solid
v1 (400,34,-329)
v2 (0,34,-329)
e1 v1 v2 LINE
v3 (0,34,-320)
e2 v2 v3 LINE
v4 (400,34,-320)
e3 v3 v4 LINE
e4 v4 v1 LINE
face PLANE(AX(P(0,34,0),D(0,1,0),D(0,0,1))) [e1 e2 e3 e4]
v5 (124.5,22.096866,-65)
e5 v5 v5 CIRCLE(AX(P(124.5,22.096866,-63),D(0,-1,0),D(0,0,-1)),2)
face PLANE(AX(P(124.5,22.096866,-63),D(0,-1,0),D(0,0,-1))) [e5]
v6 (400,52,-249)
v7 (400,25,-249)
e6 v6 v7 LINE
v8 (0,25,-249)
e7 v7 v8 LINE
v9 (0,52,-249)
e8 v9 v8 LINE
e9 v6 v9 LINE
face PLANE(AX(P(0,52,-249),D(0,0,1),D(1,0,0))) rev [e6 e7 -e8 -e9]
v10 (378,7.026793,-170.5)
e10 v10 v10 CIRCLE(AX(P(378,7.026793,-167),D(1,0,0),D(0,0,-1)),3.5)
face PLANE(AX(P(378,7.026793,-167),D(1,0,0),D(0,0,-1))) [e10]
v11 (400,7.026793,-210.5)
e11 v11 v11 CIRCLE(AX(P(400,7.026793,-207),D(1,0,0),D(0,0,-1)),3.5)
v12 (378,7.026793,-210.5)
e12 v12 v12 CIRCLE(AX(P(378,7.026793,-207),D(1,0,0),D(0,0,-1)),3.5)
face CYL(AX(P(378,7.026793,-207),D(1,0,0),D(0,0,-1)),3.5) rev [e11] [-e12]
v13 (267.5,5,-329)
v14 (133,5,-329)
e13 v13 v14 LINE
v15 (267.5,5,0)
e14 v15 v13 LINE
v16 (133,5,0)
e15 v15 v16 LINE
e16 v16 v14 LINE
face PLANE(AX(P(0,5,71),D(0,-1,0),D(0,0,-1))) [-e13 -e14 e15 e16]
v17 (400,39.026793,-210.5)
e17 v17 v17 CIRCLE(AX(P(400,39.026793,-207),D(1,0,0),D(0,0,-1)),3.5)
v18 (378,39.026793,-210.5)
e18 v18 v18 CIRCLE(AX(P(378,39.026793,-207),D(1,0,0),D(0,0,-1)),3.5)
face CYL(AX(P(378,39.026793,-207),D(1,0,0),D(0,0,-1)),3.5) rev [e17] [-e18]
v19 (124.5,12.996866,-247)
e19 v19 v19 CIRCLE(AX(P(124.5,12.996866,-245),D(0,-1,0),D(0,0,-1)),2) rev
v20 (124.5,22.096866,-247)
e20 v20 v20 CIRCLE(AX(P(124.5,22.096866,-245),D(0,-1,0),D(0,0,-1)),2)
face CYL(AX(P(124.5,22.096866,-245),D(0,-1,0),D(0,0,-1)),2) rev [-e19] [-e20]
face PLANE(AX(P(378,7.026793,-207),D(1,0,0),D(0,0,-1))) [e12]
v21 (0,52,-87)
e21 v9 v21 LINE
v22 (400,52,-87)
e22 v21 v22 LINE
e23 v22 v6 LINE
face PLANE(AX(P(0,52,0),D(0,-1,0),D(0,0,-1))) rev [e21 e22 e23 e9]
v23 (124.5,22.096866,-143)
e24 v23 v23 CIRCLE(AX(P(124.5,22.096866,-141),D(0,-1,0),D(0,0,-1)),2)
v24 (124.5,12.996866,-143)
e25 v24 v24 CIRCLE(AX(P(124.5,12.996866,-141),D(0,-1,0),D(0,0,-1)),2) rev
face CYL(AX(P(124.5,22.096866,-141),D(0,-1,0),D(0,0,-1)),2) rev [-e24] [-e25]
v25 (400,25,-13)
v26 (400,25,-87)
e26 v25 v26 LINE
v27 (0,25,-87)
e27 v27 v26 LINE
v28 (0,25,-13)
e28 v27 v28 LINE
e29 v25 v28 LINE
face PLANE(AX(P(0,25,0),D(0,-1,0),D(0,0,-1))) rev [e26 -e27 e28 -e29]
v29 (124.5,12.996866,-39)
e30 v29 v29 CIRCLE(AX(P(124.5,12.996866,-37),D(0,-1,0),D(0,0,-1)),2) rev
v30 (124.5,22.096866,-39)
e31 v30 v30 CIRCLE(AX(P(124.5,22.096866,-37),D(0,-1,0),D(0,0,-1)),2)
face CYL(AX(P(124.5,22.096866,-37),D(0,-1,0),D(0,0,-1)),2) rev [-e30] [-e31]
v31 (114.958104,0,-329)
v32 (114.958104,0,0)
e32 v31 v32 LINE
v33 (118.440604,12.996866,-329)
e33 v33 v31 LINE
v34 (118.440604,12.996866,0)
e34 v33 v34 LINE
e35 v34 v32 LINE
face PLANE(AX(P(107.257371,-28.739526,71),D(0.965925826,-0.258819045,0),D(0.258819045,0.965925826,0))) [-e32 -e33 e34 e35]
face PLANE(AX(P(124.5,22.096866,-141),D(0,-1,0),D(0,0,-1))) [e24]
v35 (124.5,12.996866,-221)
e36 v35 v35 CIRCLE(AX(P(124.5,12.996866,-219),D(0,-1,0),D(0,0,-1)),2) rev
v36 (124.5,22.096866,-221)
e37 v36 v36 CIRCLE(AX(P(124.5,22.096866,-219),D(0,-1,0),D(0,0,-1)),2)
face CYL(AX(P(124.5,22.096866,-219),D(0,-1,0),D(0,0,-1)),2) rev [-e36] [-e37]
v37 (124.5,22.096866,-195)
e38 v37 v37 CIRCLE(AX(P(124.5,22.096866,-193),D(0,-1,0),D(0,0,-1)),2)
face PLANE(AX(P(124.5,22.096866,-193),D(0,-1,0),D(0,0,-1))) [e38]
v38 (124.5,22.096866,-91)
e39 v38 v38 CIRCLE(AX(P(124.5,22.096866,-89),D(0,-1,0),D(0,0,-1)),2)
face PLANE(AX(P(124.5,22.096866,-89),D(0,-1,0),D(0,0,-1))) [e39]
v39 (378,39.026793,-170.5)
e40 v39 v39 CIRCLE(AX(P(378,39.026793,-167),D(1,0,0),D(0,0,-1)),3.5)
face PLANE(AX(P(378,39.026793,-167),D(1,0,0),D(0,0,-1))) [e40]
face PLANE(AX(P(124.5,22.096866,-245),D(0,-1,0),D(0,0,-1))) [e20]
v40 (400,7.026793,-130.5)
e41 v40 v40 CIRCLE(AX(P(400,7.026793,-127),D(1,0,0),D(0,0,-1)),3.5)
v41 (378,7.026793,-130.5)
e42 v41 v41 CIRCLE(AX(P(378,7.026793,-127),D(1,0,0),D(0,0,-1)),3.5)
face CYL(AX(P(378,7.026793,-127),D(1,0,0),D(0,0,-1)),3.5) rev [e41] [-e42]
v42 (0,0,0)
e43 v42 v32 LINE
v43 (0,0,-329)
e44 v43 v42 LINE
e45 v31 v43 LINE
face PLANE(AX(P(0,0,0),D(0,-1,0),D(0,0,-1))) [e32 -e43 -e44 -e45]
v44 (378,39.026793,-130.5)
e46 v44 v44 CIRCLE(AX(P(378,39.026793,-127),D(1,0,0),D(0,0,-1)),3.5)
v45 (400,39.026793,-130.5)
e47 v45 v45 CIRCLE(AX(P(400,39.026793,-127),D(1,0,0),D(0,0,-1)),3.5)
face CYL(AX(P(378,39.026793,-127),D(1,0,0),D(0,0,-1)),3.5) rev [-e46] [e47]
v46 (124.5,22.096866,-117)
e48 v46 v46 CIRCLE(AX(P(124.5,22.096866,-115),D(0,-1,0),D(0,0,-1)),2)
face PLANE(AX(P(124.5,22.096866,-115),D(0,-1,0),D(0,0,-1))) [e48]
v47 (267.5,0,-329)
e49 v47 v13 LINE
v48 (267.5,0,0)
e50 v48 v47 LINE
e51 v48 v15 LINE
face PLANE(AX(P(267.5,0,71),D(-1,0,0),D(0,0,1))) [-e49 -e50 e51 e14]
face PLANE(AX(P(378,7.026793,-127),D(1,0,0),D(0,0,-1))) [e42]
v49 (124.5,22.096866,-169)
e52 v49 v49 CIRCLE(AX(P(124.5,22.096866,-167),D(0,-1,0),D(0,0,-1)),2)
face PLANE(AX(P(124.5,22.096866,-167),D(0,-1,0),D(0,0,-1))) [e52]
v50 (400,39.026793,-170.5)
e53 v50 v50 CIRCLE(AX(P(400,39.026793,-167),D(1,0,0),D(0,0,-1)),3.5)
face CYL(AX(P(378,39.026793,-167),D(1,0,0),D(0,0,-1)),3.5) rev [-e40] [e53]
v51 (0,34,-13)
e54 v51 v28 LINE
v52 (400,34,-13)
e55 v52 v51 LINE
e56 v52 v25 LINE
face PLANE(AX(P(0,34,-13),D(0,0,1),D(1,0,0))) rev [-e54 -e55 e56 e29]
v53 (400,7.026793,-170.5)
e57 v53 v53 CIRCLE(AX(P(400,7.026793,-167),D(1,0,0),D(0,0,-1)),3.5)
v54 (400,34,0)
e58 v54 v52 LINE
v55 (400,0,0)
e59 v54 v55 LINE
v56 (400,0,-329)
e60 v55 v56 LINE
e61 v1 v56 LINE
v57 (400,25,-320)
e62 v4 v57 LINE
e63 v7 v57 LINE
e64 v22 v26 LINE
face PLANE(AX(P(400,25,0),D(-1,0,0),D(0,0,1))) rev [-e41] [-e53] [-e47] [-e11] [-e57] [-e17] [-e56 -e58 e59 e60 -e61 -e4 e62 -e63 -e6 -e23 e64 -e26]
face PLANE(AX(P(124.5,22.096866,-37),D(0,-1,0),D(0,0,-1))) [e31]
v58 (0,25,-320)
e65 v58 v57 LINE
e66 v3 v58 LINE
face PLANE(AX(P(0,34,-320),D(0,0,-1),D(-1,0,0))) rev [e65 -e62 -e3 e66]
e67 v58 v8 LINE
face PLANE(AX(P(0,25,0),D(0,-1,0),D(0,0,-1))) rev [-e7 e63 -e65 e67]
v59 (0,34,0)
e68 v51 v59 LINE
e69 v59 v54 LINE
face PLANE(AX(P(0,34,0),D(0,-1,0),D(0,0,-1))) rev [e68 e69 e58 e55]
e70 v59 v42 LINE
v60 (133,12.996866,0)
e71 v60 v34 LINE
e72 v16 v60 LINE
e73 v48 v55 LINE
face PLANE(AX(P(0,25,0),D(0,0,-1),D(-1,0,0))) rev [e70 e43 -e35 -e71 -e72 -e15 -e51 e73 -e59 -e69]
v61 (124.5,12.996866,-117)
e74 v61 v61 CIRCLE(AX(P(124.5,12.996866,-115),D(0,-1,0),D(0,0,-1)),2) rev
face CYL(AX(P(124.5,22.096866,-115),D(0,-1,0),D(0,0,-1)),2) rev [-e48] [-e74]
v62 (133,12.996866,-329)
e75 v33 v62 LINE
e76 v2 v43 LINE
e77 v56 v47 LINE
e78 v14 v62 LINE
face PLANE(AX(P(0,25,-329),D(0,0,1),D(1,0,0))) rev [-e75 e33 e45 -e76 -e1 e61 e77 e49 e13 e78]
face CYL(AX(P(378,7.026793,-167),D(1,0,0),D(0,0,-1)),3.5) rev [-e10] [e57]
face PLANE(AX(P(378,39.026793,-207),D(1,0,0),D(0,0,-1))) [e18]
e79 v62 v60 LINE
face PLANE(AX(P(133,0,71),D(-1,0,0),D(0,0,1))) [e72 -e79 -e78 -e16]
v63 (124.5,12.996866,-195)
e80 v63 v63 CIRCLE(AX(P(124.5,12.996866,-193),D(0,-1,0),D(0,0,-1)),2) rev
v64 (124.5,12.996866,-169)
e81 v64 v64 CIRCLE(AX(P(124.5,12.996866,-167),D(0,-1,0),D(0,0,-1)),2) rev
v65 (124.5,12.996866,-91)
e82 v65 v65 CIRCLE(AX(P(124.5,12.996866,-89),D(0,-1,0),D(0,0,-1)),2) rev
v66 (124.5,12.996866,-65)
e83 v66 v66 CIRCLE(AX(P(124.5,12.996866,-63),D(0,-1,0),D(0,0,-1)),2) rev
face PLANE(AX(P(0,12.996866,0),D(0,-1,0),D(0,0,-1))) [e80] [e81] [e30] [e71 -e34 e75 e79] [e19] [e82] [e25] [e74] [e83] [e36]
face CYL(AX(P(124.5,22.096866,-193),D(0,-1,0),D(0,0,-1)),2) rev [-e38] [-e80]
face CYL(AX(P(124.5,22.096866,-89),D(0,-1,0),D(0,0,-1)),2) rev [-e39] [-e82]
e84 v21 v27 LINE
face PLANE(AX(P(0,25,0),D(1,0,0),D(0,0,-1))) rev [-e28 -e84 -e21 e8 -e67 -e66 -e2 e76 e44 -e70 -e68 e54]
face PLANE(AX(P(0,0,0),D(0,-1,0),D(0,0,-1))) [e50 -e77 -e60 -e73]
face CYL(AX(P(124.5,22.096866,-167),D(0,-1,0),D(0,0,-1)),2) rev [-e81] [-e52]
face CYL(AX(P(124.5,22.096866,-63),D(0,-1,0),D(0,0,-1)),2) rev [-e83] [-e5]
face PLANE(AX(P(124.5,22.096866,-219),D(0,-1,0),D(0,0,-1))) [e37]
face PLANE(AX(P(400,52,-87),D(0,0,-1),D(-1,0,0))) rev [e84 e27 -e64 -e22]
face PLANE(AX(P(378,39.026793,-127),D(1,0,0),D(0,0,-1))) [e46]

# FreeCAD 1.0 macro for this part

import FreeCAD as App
import Part
import Sketcher
Q = App.Units.Quantity

doc = App.newDocument("Part")
body = doc.addObject("PartDesign::Body", "Body")

sketch1 = body.newObject("Sketcher::SketchObject", "Sketch")
sketch1.AttachmentSupport = (doc.getObject("XZ_Plane"), [""])
sketch1.MapMode = "FlatFace"
sketch1.addGeometry([
    Part.LineSegment(App.Vector(0, -329, 0), App.Vector(0, 0, 0)),
    Part.LineSegment(App.Vector(0, 0, 0), App.Vector(400, 0, 0)),
    Part.LineSegment(App.Vector(400, 0, 0), App.Vector(400, -329, 0)),
    Part.LineSegment(App.Vector(400, -329, 0), App.Vector(0, -329, 0)),
], False)
sketch1.addConstraint([
    Sketcher.Constraint("Coincident", 0, 2, 1, 1),
    Sketcher.Constraint("Coincident", 1, 2, 2, 1),
    Sketcher.Constraint("Coincident", 2, 2, 3, 1),
    Sketcher.Constraint("Coincident", 3, 2, 0, 1),
    Sketcher.Constraint("Vertical", 0),
    Sketcher.Constraint("Horizontal", 1),
    Sketcher.Constraint("Vertical", 2),
    Sketcher.Constraint("Horizontal", 3),
    Sketcher.Constraint("Coincident", 0, 2, -1, 1),
    Sketcher.Constraint("DistanceX", 1, 1, 1, 2, 400.0),
    Sketcher.Constraint("DistanceY", 0, 1, 0, 2, 329.0),
])
pad1 = body.newObject("PartDesign::Pad", "Pad")
pad1.Profile = sketch1
pad1.Length = 25
pad1.Reversed = True

sketch2 = body.newObject("Sketcher::SketchObject", "Sketch001")
sketch2.AttachmentSupport = (doc.getObject("XZ_Plane"), [""])
sketch2.MapMode = "FlatFace"
sketch2.AttachmentOffset = App.Placement(App.Vector(0, 0, -25), App.Rotation())
sketch2.addGeometry([
    Part.LineSegment(App.Vector(0, -249, 0), App.Vector(0, -87, 0)),
    Part.LineSegment(App.Vector(0, -87, 0), App.Vector(400, -87, 0)),
    Part.LineSegment(App.Vector(400, -87, 0), App.Vector(400, -249, 0)),
    Part.LineSegment(App.Vector(400, -249, 0), App.Vector(0, -249, 0)),
], False)
sketch2.addConstraint([
    Sketcher.Constraint("Coincident", 0, 2, 1, 1),
    Sketcher.Constraint("Coincident", 1, 2, 2, 1),
    Sketcher.Constraint("Coincident", 2, 2, 3, 1),
    Sketcher.Constraint("Coincident", 3, 2, 0, 1),
    Sketcher.Constraint("Vertical", 0),
    Sketcher.Constraint("Horizontal", 1),
    Sketcher.Constraint("Vertical", 2),
    Sketcher.Constraint("Horizontal", 3),
    Sketcher.Constraint("PointOnObject", 0, 2, -2),
    Sketcher.Constraint("DistanceX", 1, 1, 1, 2, 400.0),
    Sketcher.Constraint("DistanceY", 0, 1, 0, 2, 162.0),
    Sketcher.Constraint("DistanceY", 0, 2, -1, 1, 87.0),
])
pad2 = body.newObject("PartDesign::Pad", "Pad001")
pad2.Profile = sketch2
pad2.Length = 27
pad2.Reversed = True

sketch3 = body.newObject("Sketcher::SketchObject", "Sketch002")
sketch3.AttachmentSupport = (doc.getObject("XZ_Plane"), [""])
sketch3.MapMode = "FlatFace"
sketch3.AttachmentOffset = App.Placement(App.Vector(0, 0, -25), App.Rotation())
sketch3.addGeometry([
    Part.LineSegment(App.Vector(0, -329, 0), App.Vector(0, -320, 0)),
    Part.LineSegment(App.Vector(0, -320, 0), App.Vector(400, -320, 0)),
    Part.LineSegment(App.Vector(400, -320, 0), App.Vector(400, -329, 0)),
    Part.LineSegment(App.Vector(400, -329, 0), App.Vector(0, -329, 0)),
    Part.LineSegment(App.Vector(0, -13, 0), App.Vector(0, 0, 0)),
    Part.LineSegment(App.Vector(0, 0, 0), App.Vector(400, 0, 0)),
    Part.LineSegment(App.Vector(400, 0, 0), App.Vector(400, -13, 0)),
    Part.LineSegment(App.Vector(400, -13, 0), App.Vector(0, -13, 0)),
], False)
sketch3.addConstraint([
    Sketcher.Constraint("Coincident", 0, 2, 1, 1),
    Sketcher.Constraint("Coincident", 1, 2, 2, 1),
    Sketcher.Constraint("Coincident", 2, 2, 3, 1),
    Sketcher.Constraint("Coincident", 3, 2, 0, 1),
    Sketcher.Constraint("Coincident", 4, 2, 5, 1),
    Sketcher.Constraint("Coincident", 5, 2, 6, 1),
    Sketcher.Constraint("Coincident", 6, 2, 7, 1),
    Sketcher.Constraint("Coincident", 7, 2, 4, 1),
    Sketcher.Constraint("Vertical", 0),
    Sketcher.Constraint("Horizontal", 1),
    Sketcher.Constraint("Vertical", 2),
    Sketcher.Constraint("Horizontal", 3),
    Sketcher.Constraint("Vertical", 4),
    Sketcher.Constraint("Horizontal", 5),
    Sketcher.Constraint("Vertical", 6),
    Sketcher.Constraint("Horizontal", 7),
    Sketcher.Constraint("Coincident", 4, 2, -1, 1),
    Sketcher.Constraint("PointOnObject", 0, 2, -2),
    Sketcher.Constraint("Vertical", 2, 2, 5, 2),
    Sketcher.Constraint("DistanceX", 1, 1, 1, 2, 400.0),
    Sketcher.Constraint("DistanceY", 0, 1, 0, 2, 9.0),
    Sketcher.Constraint("DistanceY", 4, 1, 4, 2, 13.0),
    Sketcher.Constraint("DistanceY", 0, 2, -1, 1, 320.0),
])
pad3 = body.newObject("PartDesign::Pad", "Pad002")
pad3.Profile = sketch3
pad3.Length = 9
pad3.Reversed = True

sketch4 = body.newObject("Sketcher::SketchObject", "Sketch003")
sketch4.AttachmentSupport = (doc.getObject("XY_Plane"), [""])
sketch4.MapMode = "FlatFace"
sketch4.AttachmentOffset = App.Placement(App.Vector(0, 0, -329), App.Rotation())
sketch4.addGeometry([
    Part.LineSegment(App.Vector(268, 5, 0), App.Vector(268, 0, 0)),
    Part.LineSegment(App.Vector(268, 0, 0), App.Vector(115, 0, 0)),
    Part.LineSegment(App.Vector(115, 0, 0), App.Vector(118, 13, 0)),
    Part.LineSegment(App.Vector(118, 13, 0), App.Vector(133, 13, 0)),
    Part.LineSegment(App.Vector(133, 13, 0), App.Vector(133, 5, 0)),
    Part.LineSegment(App.Vector(133, 5, 0), App.Vector(268, 5, 0)),
], False)
sketch4.addConstraint([
    Sketcher.Constraint("Coincident", 0, 2, 1, 1),
    Sketcher.Constraint("Coincident", 1, 2, 2, 1),
    Sketcher.Constraint("Coincident", 2, 2, 3, 1),
    Sketcher.Constraint("Coincident", 3, 2, 4, 1),
    Sketcher.Constraint("Coincident", 4, 2, 5, 1),
    Sketcher.Constraint("Coincident", 5, 2, 0, 1),
    Sketcher.Constraint("Vertical", 0),
    Sketcher.Constraint("Horizontal", 1),
    Sketcher.Constraint("Horizontal", 3),
    Sketcher.Constraint("Vertical", 4),
    Sketcher.Constraint("Horizontal", 5),
    Sketcher.Constraint("PointOnObject", 0, 2, -1),
    Sketcher.Constraint("DistanceY", 0, 2, 0, 1, 5.0),
    Sketcher.Constraint("Angle", 2, Q("75 deg")),
    Sketcher.Constraint("DistanceX", 5, 1, 5, 2, 134.5),
    Sketcher.Constraint("DistanceX", -1, 1, 3, 2, 133.0),
    Sketcher.Constraint("DistanceX", 3, 1, 3, 2, 14.54064),
    Sketcher.Constraint("DistanceX", 1, 2, 1, 1, 152.541896),
])
pocket1 = body.newObject("PartDesign::Pocket", "Pocket")
pocket1.Profile = sketch4
pocket1.Length = 400
pocket1.Reversed = True

sketch5 = body.newObject("Sketcher::SketchObject", "Sketch004")
sketch5.AttachmentSupport = (doc.getObject("XZ_Plane"), [""])
sketch5.MapMode = "FlatFace"
sketch5.AttachmentOffset = App.Placement(App.Vector(0, 0, -13.066866), App.Rotation())
sketch5.addGeometry([
    Part.Circle(App.Vector(124.5, -37, 0), App.Vector(0, 0, 1), 2),
    Part.Circle(App.Vector(124.5, -63, 0), App.Vector(0, 0, 1), 2),
    Part.Circle(App.Vector(124.5, -89, 0), App.Vector(0, 0, 1), 2),
    Part.Circle(App.Vector(124.5, -115, 0), App.Vector(0, 0, 1), 2),
    Part.Circle(App.Vector(124.5, -141, 0), App.Vector(0, 0, 1), 2),
    Part.Circle(App.Vector(124.5, -167, 0), App.Vector(0, 0, 1), 2),
    Part.Circle(App.Vector(124.5, -193, 0), App.Vector(0, 0, 1), 2),
    Part.Circle(App.Vector(124.5, -219, 0), App.Vector(0, 0, 1), 2),
    Part.Circle(App.Vector(124.5, -245, 0), App.Vector(0, 0, 1), 2),
], False)
sketch5.addConstraint([
    Sketcher.Constraint("Equal", 0, 1),
    Sketcher.Constraint("Equal", 1, 2),
    Sketcher.Constraint("Equal", 2, 3),
    Sketcher.Constraint("Equal", 3, 4),
    Sketcher.Constraint("Equal", 4, 5),
    Sketcher.Constraint("Equal", 5, 6),
    Sketcher.Constraint("Equal", 6, 7),
    Sketcher.Constraint("Equal", 7, 8),
    Sketcher.Constraint("Vertical", 0, 3, 1, 3),
    Sketcher.Constraint("Vertical", 1, 3, 2, 3),
    Sketcher.Constraint("Vertical", 2, 3, 3, 3),
    Sketcher.Constraint("Vertical", 3, 3, 4, 3),
    Sketcher.Constraint("Vertical", 4, 3, 5, 3),
    Sketcher.Constraint("Vertical", 5, 3, 6, 3),
    Sketcher.Constraint("Vertical", 6, 3, 7, 3),
    Sketcher.Constraint("Vertical", 7, 3, 8, 3),
    Sketcher.Constraint("Diameter", 0, 4.0),
    Sketcher.Constraint("DistanceY", 0, 3, -1, 1, 37.0),
    Sketcher.Constraint("DistanceY", 1, 3, -1, 1, 63.0),
    Sketcher.Constraint("DistanceY", 2, 3, -1, 1, 89.0),
    Sketcher.Constraint("DistanceY", 3, 3, -1, 1, 115.0),
    Sketcher.Constraint("DistanceY", 4, 3, -1, 1, 141.0),
    Sketcher.Constraint("DistanceY", 5, 3, -1, 1, 167.0),
    Sketcher.Constraint("DistanceY", 6, 3, -1, 1, 193.0),
    Sketcher.Constraint("DistanceY", 7, 3, -1, 1, 219.0),
    Sketcher.Constraint("DistanceY", 8, 3, -1, 1, 245.0),
    Sketcher.Constraint("DistanceX", -1, 1, 0, 3, 124.5),
])
pocket2 = body.newObject("PartDesign::Pocket", "Pocket001")
pocket2.Profile = sketch5
pocket2.Length = 9.03

sketch6 = body.newObject("Sketcher::SketchObject", "Sketch005")
sketch6.AttachmentSupport = (doc.getObject("XZ_Plane"), [""])
sketch6.MapMode = "FlatFace"
sketch6.AttachmentOffset = App.Placement(App.Vector(0, 0, -12.996866), App.Rotation())
sketch6.addGeometry([
    Part.LineSegment(App.Vector(118.5, 0, 0), App.Vector(118.5, -329, 0)),
    Part.LineSegment(App.Vector(118.5, -329, 0), App.Vector(133, -329, 0)),
    Part.LineSegment(App.Vector(133, -329, 0), App.Vector(133, 0, 0)),
    Part.LineSegment(App.Vector(133, 0, 0), App.Vector(118.5, 0, 0)),
    Part.Circle(App.Vector(124.5, -245, 0), App.Vector(0, 0, 1), 2),
    Part.Circle(App.Vector(124.5, -219, 0), App.Vector(0, 0, 1), 2),
    Part.Circle(App.Vector(124.5, -193, 0), App.Vector(0, 0, 1), 2),
    Part.Circle(App.Vector(124.5, -167, 0), App.Vector(0, 0, 1), 2),
    Part.Circle(App.Vector(124.5, -141, 0), App.Vector(0, 0, 1), 2),
    Part.Circle(App.Vector(124.5, -115, 0), App.Vector(0, 0, 1), 2),
    Part.Circle(App.Vector(124.5, -89, 0), App.Vector(0, 0, 1), 2),
    Part.Circle(App.Vector(124.5, -63, 0), App.Vector(0, 0, 1), 2),
    Part.Circle(App.Vector(124.5, -37, 0), App.Vector(0, 0, 1), 2),
], False)
sketch6.addConstraint([
    Sketcher.Constraint("Coincident", 0, 2, 1, 1),
    Sketcher.Constraint("Coincident", 1, 2, 2, 1),
    Sketcher.Constraint("Coincident", 2, 2, 3, 1),
    Sketcher.Constraint("Coincident", 3, 2, 0, 1),
    Sketcher.Constraint("Vertical", 0),
    Sketcher.Constraint("Horizontal", 1),
    Sketcher.Constraint("Vertical", 2),
    Sketcher.Constraint("Horizontal", 3),
    Sketcher.Constraint("Equal", 4, 5),
    Sketcher.Constraint("Equal", 5, 6),
    Sketcher.Constraint("Equal", 6, 7),
    Sketcher.Constraint("Equal", 7, 8),
    Sketcher.Constraint("Equal", 8, 9),
    Sketcher.Constraint("Equal", 9, 10),
    Sketcher.Constraint("Equal", 10, 11),
    Sketcher.Constraint("Equal", 11, 12),
    Sketcher.Constraint("PointOnObject", 2, 2, -1),
    Sketcher.Constraint("Vertical", 4, 3, 5, 3),
    Sketcher.Constraint("Vertical", 5, 3, 6, 3),
    Sketcher.Constraint("Vertical", 6, 3, 7, 3),
    Sketcher.Constraint("Vertical", 7, 3, 8, 3),
    Sketcher.Constraint("Vertical", 8, 3, 9, 3),
    Sketcher.Constraint("Vertical", 9, 3, 10, 3),
    Sketcher.Constraint("Vertical", 10, 3, 11, 3),
    Sketcher.Constraint("Vertical", 11, 3, 12, 3),
    Sketcher.Constraint("Diameter", 4, 4.0),
    Sketcher.Constraint("DistanceY", 0, 2, 0, 1, 329.0),
    Sketcher.Constraint("DistanceY", 4, 3, -1, 1, 245.0),
    Sketcher.Constraint("DistanceY", 5, 3, -1, 1, 219.0),
    Sketcher.Constraint("DistanceY", 6, 3, -1, 1, 193.0),
    Sketcher.Constraint("DistanceY", 7, 3, -1, 1, 167.0),
    Sketcher.Constraint("DistanceY", 8, 3, -1, 1, 141.0),
    Sketcher.Constraint("DistanceY", 9, 3, -1, 1, 115.0),
    Sketcher.Constraint("DistanceY", 10, 3, -1, 1, 89.0),
    Sketcher.Constraint("DistanceY", 11, 3, -1, 1, 63.0),
    Sketcher.Constraint("DistanceY", 12, 3, -1, 1, 37.0),
    Sketcher.Constraint("DistanceX", -1, 1, 1, 2, 133.0),
    Sketcher.Constraint("DistanceX", -1, 1, 4, 3, 124.5),
    Sketcher.Constraint("DistanceX", 1, 1, 1, 2, 14.54064),
])
pad4 = body.newObject("PartDesign::Pad", "Pad003")
pad4.Profile = sketch6
pad4.Length = 0.07
pad4.Reversed = True

sketch7 = body.newObject("Sketcher::SketchObject", "Sketch006")
sketch7.AttachmentSupport = (doc.getObject("XY_Plane"), [""])
sketch7.MapMode = "FlatFace"
sketch7.addGeometry([
    Part.LineSegment(App.Vector(118.459, 12.997, 0), App.Vector(118.459, 13.067, 0)),
    Part.LineSegment(App.Vector(118.459, 13.067, 0), App.Vector(118.441, 12.997, 0)),
    Part.LineSegment(App.Vector(118.441, 12.997, 0), App.Vector(118.459, 12.997, 0)),
], False)
sketch7.addConstraint([
    Sketcher.Constraint("Coincident", 0, 2, 1, 1),
    Sketcher.Constraint("Coincident", 1, 2, 2, 1),
    Sketcher.Constraint("Coincident", 2, 2, 0, 1),
    Sketcher.Constraint("Vertical", 0),
    Sketcher.Constraint("Horizontal", 2),
    Sketcher.Constraint("Angle", 1, Q("-105 deg")),
    Sketcher.Constraint("DistanceY", 0, 1, 0, 2, 0.07),
    Sketcher.Constraint("DistanceX", -1, 1, 0, 2, 118.45936),
    Sketcher.Constraint("DistanceY", -1, 1, 0, 2, 13.066866),
])
pad5 = body.newObject("PartDesign::Pad", "Pad004")
pad5.Profile = sketch7
pad5.Length = 329
pad5.Reversed = True

sketch8 = body.newObject("Sketcher::SketchObject", "Sketch007")
sketch8.AttachmentSupport = (doc.getObject("YZ_Plane"), [""])
sketch8.MapMode = "FlatFace"
sketch8.AttachmentOffset = App.Placement(App.Vector(0, 0, 400), App.Rotation())
sketch8.addGeometry([
    Part.Circle(App.Vector(39, -207, 0), App.Vector(0, 0, 1), 3.5),
    Part.Circle(App.Vector(7, -207, 0), App.Vector(0, 0, 1), 3.5),
    Part.Circle(App.Vector(39, -167, 0), App.Vector(0, 0, 1), 3.5),
    Part.Circle(App.Vector(7, -167, 0), App.Vector(0, 0, 1), 3.5),
    Part.Circle(App.Vector(39, -127, 0), App.Vector(0, 0, 1), 3.5),
    Part.Circle(App.Vector(7, -127, 0), App.Vector(0, 0, 1), 3.5),
], False)
sketch8.addConstraint([
    Sketcher.Constraint("Equal", 0, 1),
    Sketcher.Constraint("Equal", 1, 2),
    Sketcher.Constraint("Equal", 2, 3),
    Sketcher.Constraint("Equal", 3, 4),
    Sketcher.Constraint("Equal", 4, 5),
    Sketcher.Constraint("Horizontal", 0, 3, 1, 3),
    Sketcher.Constraint("Horizontal", 2, 3, 3, 3),
    Sketcher.Constraint("Horizontal", 4, 3, 5, 3),
    Sketcher.Constraint("Vertical", 0, 3, 2, 3),
    Sketcher.Constraint("Vertical", 1, 3, 3, 3),
    Sketcher.Constraint("Vertical", 2, 3, 4, 3),
    Sketcher.Constraint("Vertical", 3, 3, 5, 3),
    Sketcher.Constraint("Diameter", 0, 7.0),
    Sketcher.Constraint("DistanceY", 0, 3, -1, 1, 207.0),
    Sketcher.Constraint("DistanceY", 2, 3, -1, 1, 167.0),
    Sketcher.Constraint("DistanceY", 4, 3, -1, 1, 127.0),
    Sketcher.Constraint("DistanceX", 1, 3, 0, 3, 32.0),
    Sketcher.Constraint("DistanceX", -1, 1, 0, 3, 39.026793),
])
pocket3 = body.newObject("PartDesign::Pocket", "Pocket002")
pocket3.Profile = sketch8
pocket3.Length = 22

doc.recompute()
